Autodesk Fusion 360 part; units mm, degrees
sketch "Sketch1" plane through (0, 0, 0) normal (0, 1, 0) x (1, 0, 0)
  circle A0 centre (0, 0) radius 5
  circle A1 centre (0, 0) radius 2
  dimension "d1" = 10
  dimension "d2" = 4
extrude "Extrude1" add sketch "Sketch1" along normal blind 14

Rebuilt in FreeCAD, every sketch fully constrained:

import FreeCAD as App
import Part
import Sketcher
from FreeCAD import Vector
Q = App.Units.Quantity

doc = App.newDocument("Part")
params = doc.addObject("Spreadsheet::Sheet", "Params")
for row, (alias, value) in enumerate([
    ("sketch1_diameter", "10 mm"),
    ("sketch1_diameter2", "4 mm"),
    ("pad1_length", "14 mm"),
], start=1):
    params.set(f"A{row}", alias)
    params.set(f"B{row}", "=" + value)
    params.setAlias(f"B{row}", alias)

body = doc.addObject("PartDesign::Body", "Body")

# Sketch on XZ plane
sketch1 = body.newObject("Sketcher::SketchObject", "Sketch")
sketch1.AttachmentSupport = (doc.getObject("XZ_Plane"), [""])
sketch1.MapMode = "FlatFace"
sketch1.addGeometry(Part.Circle(Vector(0, 0, 0), Vector(0, 0, 1), 5), False)
sketch1.addGeometry(Part.Circle(Vector(0, 0, 0), Vector(0, 0, 1), 2), False)
sketch1.addConstraint(Sketcher.Constraint("Coincident", 0, 3, -1, 1))
sketch1.addConstraint(Sketcher.Constraint("Coincident", 1, 3, -1, 1))
sketch1.addConstraint(Sketcher.Constraint("Diameter", 0, Q("10 mm")))
sketch1.addConstraint(Sketcher.Constraint("Diameter", 1, Q("4 mm")))
sketch1.setExpression("Constraints[2]", "Params.sketch1_diameter")
sketch1.setExpression("Constraints[3]", "Params.sketch1_diameter2")
pad1 = body.newObject("PartDesign::Pad", "Pad")
pad1.Profile = sketch1
pad1.setExpression("Length", "Params.pad1_length")
pad1.Reversed = True

doc.recompute()
